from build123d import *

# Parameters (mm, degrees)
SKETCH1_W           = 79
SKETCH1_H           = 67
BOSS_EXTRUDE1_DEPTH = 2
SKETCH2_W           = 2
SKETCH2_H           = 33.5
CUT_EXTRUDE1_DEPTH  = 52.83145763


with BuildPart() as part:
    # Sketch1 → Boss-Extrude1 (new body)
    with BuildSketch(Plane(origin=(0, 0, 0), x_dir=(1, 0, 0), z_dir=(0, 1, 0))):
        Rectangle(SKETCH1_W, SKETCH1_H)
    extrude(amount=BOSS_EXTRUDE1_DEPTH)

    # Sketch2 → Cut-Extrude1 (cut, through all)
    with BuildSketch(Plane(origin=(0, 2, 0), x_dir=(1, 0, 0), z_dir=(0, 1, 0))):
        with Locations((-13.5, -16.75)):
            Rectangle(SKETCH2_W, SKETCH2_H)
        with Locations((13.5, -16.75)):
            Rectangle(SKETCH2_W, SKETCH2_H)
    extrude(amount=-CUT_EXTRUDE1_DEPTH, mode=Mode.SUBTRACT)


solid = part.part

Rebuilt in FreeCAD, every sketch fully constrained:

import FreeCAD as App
import Part
import Sketcher

doc = App.newDocument("Part")
body = doc.addObject("PartDesign::Body", "Body")

sketch1 = doc.addObject("Sketcher::SketchObject", "Sketch")
body.addObject(sketch1)
sketch1.AttachmentSupport = (doc.XZ_Plane, [""])
sketch1.MapMode = "FlatFace"
sketch1.addGeometry([
    Part.LineSegment(App.Vector(-40, -34, 0), App.Vector(-40, 34, 0)),
    Part.LineSegment(App.Vector(-40, 34, 0), App.Vector(40, 34, 0)),
    Part.LineSegment(App.Vector(40, 34, 0), App.Vector(40, -34, 0)),
    Part.LineSegment(App.Vector(40, -34, 0), App.Vector(-40, -34, 0)),
], False)
sketch1.addConstraint([
    Sketcher.Constraint("Coincident", 0, 2, 1, 1),
    Sketcher.Constraint("Coincident", 1, 2, 2, 1),
    Sketcher.Constraint("Coincident", 2, 2, 3, 1),
    Sketcher.Constraint("Coincident", 3, 2, 0, 1),
    Sketcher.Constraint("Vertical", 0),
    Sketcher.Constraint("Horizontal", 1),
    Sketcher.Constraint("Vertical", 2),
    Sketcher.Constraint("Horizontal", 3),
    Sketcher.Constraint("Symmetric", 0, 2, 2, 2, -1, 1),
    Sketcher.Constraint("DistanceX", 1, 1, 1, 2, 79.0),
    Sketcher.Constraint("DistanceY", 0, 1, 0, 2, 67.0),
])
pad1 = doc.addObject("PartDesign::Pad", "Pad")
body.addObject(pad1)
pad1.Profile = sketch1
pad1.Length = 2
pad1.Reversed = True

sketch2 = doc.addObject("Sketcher::SketchObject", "Sketch001")
body.addObject(sketch2)
sketch2.AttachmentSupport = (doc.XZ_Plane, [""])
sketch2.MapMode = "FlatFace"
sketch2.AttachmentOffset = App.Placement(App.Vector(0, 0, -2), App.Rotation())
sketch2.addGeometry([
    Part.LineSegment(App.Vector(-14.5, 0, 0), App.Vector(-14.5, 33.5, 0)),
    Part.LineSegment(App.Vector(-14.5, 33.5, 0), App.Vector(-12.5, 33.5, 0)),
    Part.LineSegment(App.Vector(-12.5, 33.5, 0), App.Vector(-12.5, 0, 0)),
    Part.LineSegment(App.Vector(-12.5, 0, 0), App.Vector(-14.5, 0, 0)),
    Part.LineSegment(App.Vector(12.5, 0, 0), App.Vector(12.5, 33.5, 0)),
    Part.LineSegment(App.Vector(12.5, 33.5, 0), App.Vector(14.5, 33.5, 0)),
    Part.LineSegment(App.Vector(14.5, 33.5, 0), App.Vector(14.5, 0, 0)),
    Part.LineSegment(App.Vector(14.5, 0, 0), App.Vector(12.5, 0, 0)),
], False)
sketch2.addConstraint([
    Sketcher.Constraint("Coincident", 0, 2, 1, 1),
    Sketcher.Constraint("Coincident", 1, 2, 2, 1),
    Sketcher.Constraint("Coincident", 2, 2, 3, 1),
    Sketcher.Constraint("Coincident", 3, 2, 0, 1),
    Sketcher.Constraint("Coincident", 4, 2, 5, 1),
    Sketcher.Constraint("Coincident", 5, 2, 6, 1),
    Sketcher.Constraint("Coincident", 6, 2, 7, 1),
    Sketcher.Constraint("Coincident", 7, 2, 4, 1),
    Sketcher.Constraint("Vertical", 0),
    Sketcher.Constraint("Horizontal", 1),
    Sketcher.Constraint("Vertical", 2),
    Sketcher.Constraint("Horizontal", 3),
    Sketcher.Constraint("Vertical", 4),
    Sketcher.Constraint("Horizontal", 5),
    Sketcher.Constraint("Vertical", 6),
    Sketcher.Constraint("Horizontal", 7),
    Sketcher.Constraint("Symmetric", 3, 2, 6, 2, -1, 1),
    Sketcher.Constraint("Symmetric", 1, 2, 4, 2, -2),
    Sketcher.Constraint("PointOnObject", 2, 2, -1),
    Sketcher.Constraint("DistanceX", 1, 1, 1, 2, 2.0),
    Sketcher.Constraint("DistanceY", 0, 1, 0, 2, 33.5),
    Sketcher.Constraint("DistanceX", 1, 2, 4, 2, 25.0),
])
pocket1 = doc.addObject("PartDesign::Pocket", "Pocket")
body.addObject(pocket1)
pocket1.Profile = sketch2
pocket1.Type = "ThroughAll"
pocket1.Reversed = True

doc.recompute()
